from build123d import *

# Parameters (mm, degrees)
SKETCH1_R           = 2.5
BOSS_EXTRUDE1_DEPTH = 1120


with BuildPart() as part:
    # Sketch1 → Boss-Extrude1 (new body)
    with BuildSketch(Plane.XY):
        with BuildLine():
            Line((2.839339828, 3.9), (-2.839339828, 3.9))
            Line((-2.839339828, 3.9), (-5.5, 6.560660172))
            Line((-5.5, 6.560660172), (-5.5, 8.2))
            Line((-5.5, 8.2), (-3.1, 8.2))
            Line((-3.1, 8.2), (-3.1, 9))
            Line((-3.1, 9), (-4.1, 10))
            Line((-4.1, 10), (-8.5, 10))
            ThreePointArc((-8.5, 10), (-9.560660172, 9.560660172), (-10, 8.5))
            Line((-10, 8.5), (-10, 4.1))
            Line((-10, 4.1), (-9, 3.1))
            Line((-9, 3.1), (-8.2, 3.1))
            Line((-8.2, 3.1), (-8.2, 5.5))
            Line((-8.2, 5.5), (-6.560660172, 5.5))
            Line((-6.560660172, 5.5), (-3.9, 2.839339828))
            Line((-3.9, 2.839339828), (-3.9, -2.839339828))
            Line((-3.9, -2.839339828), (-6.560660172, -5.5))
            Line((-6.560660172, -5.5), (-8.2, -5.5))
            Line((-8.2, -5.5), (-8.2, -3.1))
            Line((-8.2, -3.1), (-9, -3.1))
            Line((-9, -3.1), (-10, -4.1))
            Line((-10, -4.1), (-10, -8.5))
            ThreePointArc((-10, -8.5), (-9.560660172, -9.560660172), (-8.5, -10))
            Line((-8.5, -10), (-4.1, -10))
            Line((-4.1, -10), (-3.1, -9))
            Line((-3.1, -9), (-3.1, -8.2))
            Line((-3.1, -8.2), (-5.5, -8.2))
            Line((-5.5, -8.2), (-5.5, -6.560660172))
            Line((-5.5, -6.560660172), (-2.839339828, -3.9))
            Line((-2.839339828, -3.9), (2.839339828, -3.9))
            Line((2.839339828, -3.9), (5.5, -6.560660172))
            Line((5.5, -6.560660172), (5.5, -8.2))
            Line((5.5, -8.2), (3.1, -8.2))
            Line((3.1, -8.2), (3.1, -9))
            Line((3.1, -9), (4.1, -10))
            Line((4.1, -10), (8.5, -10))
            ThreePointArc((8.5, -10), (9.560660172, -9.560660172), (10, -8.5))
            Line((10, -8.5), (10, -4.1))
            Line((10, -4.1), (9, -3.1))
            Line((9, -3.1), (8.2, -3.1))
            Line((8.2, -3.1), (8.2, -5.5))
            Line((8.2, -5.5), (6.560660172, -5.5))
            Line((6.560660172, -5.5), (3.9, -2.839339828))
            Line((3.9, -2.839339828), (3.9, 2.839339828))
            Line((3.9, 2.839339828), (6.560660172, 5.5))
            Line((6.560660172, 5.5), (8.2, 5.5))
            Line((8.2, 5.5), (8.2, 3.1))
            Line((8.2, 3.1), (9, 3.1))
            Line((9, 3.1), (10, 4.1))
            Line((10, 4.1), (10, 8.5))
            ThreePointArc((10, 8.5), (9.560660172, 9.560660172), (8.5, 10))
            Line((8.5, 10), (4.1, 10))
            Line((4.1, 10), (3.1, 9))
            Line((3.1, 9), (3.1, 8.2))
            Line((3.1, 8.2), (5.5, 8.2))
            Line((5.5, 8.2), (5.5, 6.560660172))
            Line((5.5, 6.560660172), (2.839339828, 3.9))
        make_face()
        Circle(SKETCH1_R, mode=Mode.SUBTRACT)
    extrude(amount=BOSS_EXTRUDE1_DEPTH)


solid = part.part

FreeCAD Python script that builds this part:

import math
import FreeCAD as App
import Part
import Sketcher
from FreeCAD import Vector
Q = App.Units.Quantity

doc = App.newDocument("Part")
params = doc.addObject("Spreadsheet::Sheet", "Params")
for row, (alias, value) in enumerate([
    ("sketch1_diameter", "5 mm"),
    ("sketch1_radius", "1.5 mm"),
    ("sketch1_width", "2.4 mm"),
    ("sketch1_width2", "4.4 mm"),
    ("sketch1_width3", "0.8 mm"),
    ("pad1_length", "1120 mm"),
], start=1):
    params.set(f"A{row}", alias)
    params.set(f"B{row}", "=" + value)
    params.setAlias(f"B{row}", alias)

body = doc.addObject("PartDesign::Body", "Body")

sketch1 = body.newObject("Sketcher::SketchObject", "Sketch")
sketch1.AttachmentSupport = (doc.getObject("XY_Plane"), [""])
sketch1.MapMode = "FlatFace"
sketch1.addGeometry([
    Part.LineSegment(Vector(2.8, 3.9, 0), Vector(-2.8, 3.9, 0)),
    Part.LineSegment(Vector(-2.8, 3.9, 0), Vector(-5.5, 6.6, 0)),
    Part.LineSegment(Vector(-5.5, 6.6, 0), Vector(-5.5, 8.2, 0)),
    Part.LineSegment(Vector(-5.5, 8.2, 0), Vector(-3.1, 8.2, 0)),
    Part.LineSegment(Vector(-3.1, 8.2, 0), Vector(-3.1, 9, 0)),
    Part.LineSegment(Vector(-3.1, 9, 0), Vector(-4.1, 10, 0)),
    Part.LineSegment(Vector(-4.1, 10, 0), Vector(-8.5, 10, 0)),
    Part.ArcOfCircle(Part.Circle(Vector(-8.5, 8.5, 0), Vector(0, 0, 1), 1.5), math.radians(90), math.radians(180)),
    Part.LineSegment(Vector(-10, 8.5, 0), Vector(-10, 4.1, 0)),
    Part.LineSegment(Vector(-10, 4.1, 0), Vector(-9, 3.1, 0)),
    Part.LineSegment(Vector(-9, 3.1, 0), Vector(-8.2, 3.1, 0)),
    Part.LineSegment(Vector(-8.2, 3.1, 0), Vector(-8.2, 5.5, 0)),
    Part.LineSegment(Vector(-8.2, 5.5, 0), Vector(-6.6, 5.5, 0)),
    Part.LineSegment(Vector(-6.6, 5.5, 0), Vector(-3.9, 2.8, 0)),
    Part.LineSegment(Vector(-3.9, 2.8, 0), Vector(-3.9, -2.8, 0)),
    Part.LineSegment(Vector(-3.9, -2.8, 0), Vector(-6.6, -5.5, 0)),
    Part.LineSegment(Vector(-6.6, -5.5, 0), Vector(-8.2, -5.5, 0)),
    Part.LineSegment(Vector(-8.2, -5.5, 0), Vector(-8.2, -3.1, 0)),
    Part.LineSegment(Vector(-8.2, -3.1, 0), Vector(-9, -3.1, 0)),
    Part.LineSegment(Vector(-9, -3.1, 0), Vector(-10, -4.1, 0)),
    Part.LineSegment(Vector(-10, -4.1, 0), Vector(-10, -8.5, 0)),
    Part.ArcOfCircle(Part.Circle(Vector(-8.5, -8.5, 0), Vector(0, 0, 1), 1.5), math.radians(180), math.radians(270)),
    Part.LineSegment(Vector(-8.5, -10, 0), Vector(-4.1, -10, 0)),
    Part.LineSegment(Vector(-4.1, -10, 0), Vector(-3.1, -9, 0)),
    Part.LineSegment(Vector(-3.1, -9, 0), Vector(-3.1, -8.2, 0)),
    Part.LineSegment(Vector(-3.1, -8.2, 0), Vector(-5.5, -8.2, 0)),
    Part.LineSegment(Vector(-5.5, -8.2, 0), Vector(-5.5, -6.6, 0)),
    Part.LineSegment(Vector(-5.5, -6.6, 0), Vector(-2.8, -3.9, 0)),
    Part.LineSegment(Vector(-2.8, -3.9, 0), Vector(2.8, -3.9, 0)),
    Part.LineSegment(Vector(2.8, -3.9, 0), Vector(5.5, -6.6, 0)),
    Part.LineSegment(Vector(5.5, -6.6, 0), Vector(5.5, -8.2, 0)),
    Part.LineSegment(Vector(5.5, -8.2, 0), Vector(3.1, -8.2, 0)),
    Part.LineSegment(Vector(3.1, -8.2, 0), Vector(3.1, -9, 0)),
    Part.LineSegment(Vector(3.1, -9, 0), Vector(4.1, -10, 0)),
    Part.LineSegment(Vector(4.1, -10, 0), Vector(8.5, -10, 0)),
    Part.ArcOfCircle(Part.Circle(Vector(8.5, -8.5, 0), Vector(0, 0, 1), 1.5), math.radians(-90), math.radians(0)),
    Part.LineSegment(Vector(10, -8.5, 0), Vector(10, -4.1, 0)),
    Part.LineSegment(Vector(10, -4.1, 0), Vector(9, -3.1, 0)),
    Part.LineSegment(Vector(9, -3.1, 0), Vector(8.2, -3.1, 0)),
    Part.LineSegment(Vector(8.2, -3.1, 0), Vector(8.2, -5.5, 0)),
    Part.LineSegment(Vector(8.2, -5.5, 0), Vector(6.6, -5.5, 0)),
    Part.LineSegment(Vector(6.6, -5.5, 0), Vector(3.9, -2.8, 0)),
    Part.LineSegment(Vector(3.9, -2.8, 0), Vector(3.9, 2.8, 0)),
    Part.LineSegment(Vector(3.9, 2.8, 0), Vector(6.6, 5.5, 0)),
    Part.LineSegment(Vector(6.6, 5.5, 0), Vector(8.2, 5.5, 0)),
    Part.LineSegment(Vector(8.2, 5.5, 0), Vector(8.2, 3.1, 0)),
    Part.LineSegment(Vector(8.2, 3.1, 0), Vector(9, 3.1, 0)),
    Part.LineSegment(Vector(9, 3.1, 0), Vector(10, 4.1, 0)),
    Part.LineSegment(Vector(10, 4.1, 0), Vector(10, 8.5, 0)),
    Part.ArcOfCircle(Part.Circle(Vector(8.5, 8.5, 0), Vector(0, 0, 1), 1.5), math.radians(0), math.radians(90)),
    Part.LineSegment(Vector(8.5, 10, 0), Vector(4.1, 10, 0)),
    Part.LineSegment(Vector(4.1, 10, 0), Vector(3.1, 9, 0)),
    Part.LineSegment(Vector(3.1, 9, 0), Vector(3.1, 8.2, 0)),
    Part.LineSegment(Vector(3.1, 8.2, 0), Vector(5.5, 8.2, 0)),
    Part.LineSegment(Vector(5.5, 8.2, 0), Vector(5.5, 6.6, 0)),
    Part.LineSegment(Vector(5.5, 6.6, 0), Vector(2.8, 3.9, 0)),
    Part.Circle(Vector(0, 0, 0), Vector(0, 0, 1), 2.5),
], False)
sketch1.addConstraint([
    Sketcher.Constraint("Coincident", 0, 2, 1, 1),
    Sketcher.Constraint("Coincident", 1, 2, 2, 1),
    Sketcher.Constraint("Coincident", 2, 2, 3, 1),
    Sketcher.Constraint("Coincident", 3, 2, 4, 1),
    Sketcher.Constraint("Coincident", 4, 2, 5, 1),
    Sketcher.Constraint("Coincident", 5, 2, 6, 1),
    Sketcher.Constraint("Tangent", 6, 2, 7, 1),
    Sketcher.Constraint("Tangent", 7, 2, 8, 1),
    Sketcher.Constraint("Coincident", 8, 2, 9, 1),
    Sketcher.Constraint("Coincident", 9, 2, 10, 1),
    Sketcher.Constraint("Coincident", 10, 2, 11, 1),
    Sketcher.Constraint("Coincident", 11, 2, 12, 1),
    Sketcher.Constraint("Coincident", 12, 2, 13, 1),
    Sketcher.Constraint("Coincident", 13, 2, 14, 1),
    Sketcher.Constraint("Coincident", 14, 2, 15, 1),
    Sketcher.Constraint("Coincident", 15, 2, 16, 1),
    Sketcher.Constraint("Coincident", 16, 2, 17, 1),
    Sketcher.Constraint("Coincident", 17, 2, 18, 1),
    Sketcher.Constraint("Coincident", 18, 2, 19, 1),
    Sketcher.Constraint("Coincident", 19, 2, 20, 1),
    Sketcher.Constraint("Tangent", 20, 2, 21, 1),
    Sketcher.Constraint("Tangent", 21, 2, 22, 1),
    Sketcher.Constraint("Coincident", 22, 2, 23, 1),
    Sketcher.Constraint("Coincident", 23, 2, 24, 1),
    Sketcher.Constraint("Coincident", 24, 2, 25, 1),
    Sketcher.Constraint("Coincident", 25, 2, 26, 1),
    Sketcher.Constraint("Coincident", 26, 2, 27, 1),
    Sketcher.Constraint("Coincident", 27, 2, 28, 1),
    Sketcher.Constraint("Coincident", 28, 2, 29, 1),
    Sketcher.Constraint("Coincident", 29, 2, 30, 1),
    Sketcher.Constraint("Coincident", 30, 2, 31, 1),
    Sketcher.Constraint("Coincident", 31, 2, 32, 1),
    Sketcher.Constraint("Coincident", 32, 2, 33, 1),
    Sketcher.Constraint("Coincident", 33, 2, 34, 1),
    Sketcher.Constraint("Tangent", 34, 2, 35, 1),
    Sketcher.Constraint("Tangent", 35, 2, 36, 1),
    Sketcher.Constraint("Coincident", 36, 2, 37, 1),
    Sketcher.Constraint("Coincident", 37, 2, 38, 1),
    Sketcher.Constraint("Coincident", 38, 2, 39, 1),
    Sketcher.Constraint("Coincident", 39, 2, 40, 1),
    Sketcher.Constraint("Coincident", 40, 2, 41, 1),
    Sketcher.Constraint("Coincident", 41, 2, 42, 1),
    Sketcher.Constraint("Coincident", 42, 2, 43, 1),
    Sketcher.Constraint("Coincident", 43, 2, 44, 1),
    Sketcher.Constraint("Coincident", 44, 2, 45, 1),
    Sketcher.Constraint("Coincident", 45, 2, 46, 1),
    Sketcher.Constraint("Coincident", 46, 2, 47, 1),
    Sketcher.Constraint("Coincident", 47, 2, 48, 1),
    Sketcher.Constraint("Tangent", 48, 2, 49, 1),
    Sketcher.Constraint("Tangent", 49, 2, 50, 1),
    Sketcher.Constraint("Coincident", 50, 2, 51, 1),
    Sketcher.Constraint("Coincident", 51, 2, 52, 1),
    Sketcher.Constraint("Coincident", 52, 2, 53, 1),
    Sketcher.Constraint("Coincident", 53, 2, 54, 1),
    Sketcher.Constraint("Coincident", 54, 2, 55, 1),
    Sketcher.Constraint("Coincident", 55, 2, 0, 1),
    Sketcher.Constraint("Horizontal", 0),
    Sketcher.Constraint("Vertical", 2),
    Sketcher.Constraint("Horizontal", 3),
    Sketcher.Constraint("Vertical", 4),
    Sketcher.Constraint("Horizontal", 6),
    Sketcher.Constraint("Vertical", 8),
    Sketcher.Constraint("Horizontal", 10),
    Sketcher.Constraint("Vertical", 11),
    Sketcher.Constraint("Horizontal", 12),
    Sketcher.Constraint("Vertical", 14),
    Sketcher.Constraint("Horizontal", 16),
    Sketcher.Constraint("Vertical", 17),
    Sketcher.Constraint("Horizontal", 18),
    Sketcher.Constraint("Vertical", 20),
    Sketcher.Constraint("Horizontal", 22),
    Sketcher.Constraint("Vertical", 24),
    Sketcher.Constraint("Horizontal", 25),
    Sketcher.Constraint("Vertical", 26),
    Sketcher.Constraint("Horizontal", 28),
    Sketcher.Constraint("Vertical", 30),
    Sketcher.Constraint("Horizontal", 31),
    Sketcher.Constraint("Vertical", 32),
    Sketcher.Constraint("Horizontal", 34),
    Sketcher.Constraint("Vertical", 36),
    Sketcher.Constraint("Horizontal", 38),
    Sketcher.Constraint("Vertical", 39),
    Sketcher.Constraint("Horizontal", 40),
    Sketcher.Constraint("Vertical", 42),
    Sketcher.Constraint("Horizontal", 44),
    Sketcher.Constraint("Vertical", 45),
    Sketcher.Constraint("Horizontal", 46),
    Sketcher.Constraint("Vertical", 48),
    Sketcher.Constraint("Horizontal", 50),
    Sketcher.Constraint("Vertical", 52),
    Sketcher.Constraint("Horizontal", 53),
    Sketcher.Constraint("Vertical", 54),
    Sketcher.Constraint("Coincident", 56, 3, -1, 1),
    Sketcher.Constraint("Equal", 7, 21),
    Sketcher.Constraint("Equal", 21, 35),
    Sketcher.Constraint("Equal", 35, 49),
    Sketcher.Constraint("Symmetric", 7, 3, 35, 3, -1, 1),
    Sketcher.Constraint("Symmetric", 21, 3, 49, 3, -1, 1),
    Sketcher.Constraint("Symmetric", 0, 2, 28, 2, -1, 1),
    Sketcher.Constraint("Symmetric", 1, 2, 29, 2, -1, 1),
    Sketcher.Constraint("Symmetric", 3, 2, 31, 2, -1, 1),
    Sketcher.Constraint("Symmetric", 9, 2, 37, 2, -1, 1),
    Sketcher.Constraint("Symmetric", 11, 2, 39, 2, -1, 1),
    Sketcher.Constraint("Symmetric", 13, 2, 41, 2, -1, 1),
    Sketcher.Constraint("Symmetric", 15, 2, 43, 2, -1, 1),
    Sketcher.Constraint("Symmetric", 17, 2, 45, 2, -1, 1),
    Sketcher.Constraint("Symmetric", 23, 2, 51, 2, -1, 1),
    Sketcher.Constraint("Symmetric", 25, 2, 53, 2, -1, 1),
    Sketcher.Constraint("Symmetric", 21, 3, 35, 3, -2),
    Sketcher.Constraint("Symmetric", 26, 2, 29, 2, -2),
    Sketcher.Constraint("Symmetric", 24, 2, 31, 2, -2),
    Sketcher.Constraint("Symmetric", 18, 2, 37, 2, -2),
    Sketcher.Constraint("Symmetric", 16, 2, 39, 2, -2),
    Sketcher.Constraint("Parallel", 1, 5),
    Sketcher.Constraint("Parallel", 5, 9),
    Sketcher.Constraint("Parallel", 9, 13),
    Sketcher.Constraint("Perpendicular", 13, 15),
    Sketcher.Constraint("Parallel", 15, 19),
    Sketcher.Constraint("Parallel", 19, 23),
    Sketcher.Constraint("Parallel", 23, 27),
    Sketcher.Constraint("Parallel", 29, 33),
    Sketcher.Constraint("Parallel", 33, 37),
    Sketcher.Constraint("Parallel", 37, 41),
    Sketcher.Constraint("Perpendicular", 41, 43),
    Sketcher.Constraint("Parallel", 43, 47),
    Sketcher.Constraint("Parallel", 47, 51),
    Sketcher.Constraint("Parallel", 51, 55),
    Sketcher.Constraint("Horizontal", 23, 2, 32, 2),
    Sketcher.Constraint("Horizontal", 19, 2, 36, 2),
    Sketcher.Constraint("Horizontal", 14, 2, 41, 2),
    Sketcher.Constraint("Horizontal", 8, 2, 47, 2),
    Sketcher.Constraint("Horizontal", 4, 2, 51, 2),
    Sketcher.Constraint("Horizontal", 1, 2, 54, 2),
    Sketcher.Constraint("Equal", 44, 2),
    Sketcher.Constraint("Equal", 46, 4),
    Sketcher.Constraint("Equal", 50, 8),
    Sketcher.Constraint("Equal", 53, 11),
    Sketcher.Constraint("Equal", 28, 14),
    Sketcher.Constraint("Equal", 5, 9),
    Sketcher.Constraint("Equal", 1, 13),
    Sketcher.Constraint("Diameter", 56, Q("5 mm")),
    Sketcher.Constraint("Radius", 7, Q("1.5 mm")),
    Sketcher.Constraint("DistanceX", 3, 1, 3, 2, Q("2.4 mm")),
    Sketcher.Constraint("DistanceX", 6, 2, 6, 1, Q("4.4 mm")),
    Sketcher.Constraint("DistanceX", 10, 1, 10, 2, Q("0.8 mm")),
    Sketcher.Constraint("DistanceY", -1, 1, 4, 2, Q("9 mm")),
    Sketcher.Constraint("DistanceY", -1, 1, 5, 2, Q("10 mm")),
    Sketcher.Constraint("DistanceY", -1, 1, 0, 2, Q("3.9 mm")),
    Sketcher.Constraint("DistanceX", 0, 2, 0, 1, Q("5.67868 mm")),
])
sketch1.setExpression("Constraints[140]", "Params.sketch1_diameter")
sketch1.setExpression("Constraints[141]", "Params.sketch1_radius")
sketch1.setExpression("Constraints[142]", "Params.sketch1_width")
sketch1.setExpression("Constraints[143]", "Params.sketch1_width2")
sketch1.setExpression("Constraints[144]", "Params.sketch1_width3")
pad1 = body.newObject("PartDesign::Pad", "Pad")
pad1.Profile = sketch1
pad1.setExpression("Length", "Params.pad1_length")

doc.recompute()
